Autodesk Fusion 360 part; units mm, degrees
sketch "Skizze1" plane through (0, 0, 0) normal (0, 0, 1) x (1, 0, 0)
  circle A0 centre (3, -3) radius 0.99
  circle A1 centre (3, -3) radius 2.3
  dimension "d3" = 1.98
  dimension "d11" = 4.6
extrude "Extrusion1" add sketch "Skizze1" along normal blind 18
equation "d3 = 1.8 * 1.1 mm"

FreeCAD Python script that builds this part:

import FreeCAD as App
import Part
import Sketcher

V = App.Vector
Q = App.Units.Quantity

doc = App.newDocument("Part")
params = doc.addObject("Spreadsheet::Sheet", "Params")
for row, (alias, value) in enumerate([
    ("sketch1_diameter", "4.6 mm"),
    ("sketch1_diameter2", "1.98 mm"),
    ("pad1_length", "18 mm"),
], start=1):
    params.set(f"A{row}", alias)
    params.set(f"B{row}", "=" + value)
    params.setAlias(f"B{row}", alias)

body = doc.addObject("PartDesign::Body", "Body")

sketch1 = body.newObject("Sketcher::SketchObject", "Sketch")
sketch1.AttachmentSupport = (doc.getObject("XY_Plane"), [""])
sketch1.MapMode = "FlatFace"
sketch1.addGeometry(Part.Circle(V(3, -3, 0), V(0, 0, 1), 2.3), False)
sketch1.addGeometry(Part.Circle(V(3, -3, 0), V(0, 0, 1), 1), False)
sketch1.addConstraint(Sketcher.Constraint("Coincident", 1, 3, 0, 3))
sketch1.addConstraint(Sketcher.Constraint("Diameter", 0, Q("4.6 mm")))
sketch1.addConstraint(Sketcher.Constraint("Diameter", 1, Q("1.98 mm")))
sketch1.addConstraint(Sketcher.Constraint("DistanceX", -1, 1, 0, 3, Q("3 mm")))
sketch1.addConstraint(Sketcher.Constraint("DistanceY", 0, 3, -1, 1, Q("3 mm")))
sketch1.setExpression("Constraints[1]", "Params.sketch1_diameter")
sketch1.setExpression("Constraints[2]", "Params.sketch1_diameter2")
pad1 = body.newObject("PartDesign::Pad", "Pad")
pad1.Profile = sketch1
pad1.setExpression("Length", "Params.pad1_length")

doc.recompute()
